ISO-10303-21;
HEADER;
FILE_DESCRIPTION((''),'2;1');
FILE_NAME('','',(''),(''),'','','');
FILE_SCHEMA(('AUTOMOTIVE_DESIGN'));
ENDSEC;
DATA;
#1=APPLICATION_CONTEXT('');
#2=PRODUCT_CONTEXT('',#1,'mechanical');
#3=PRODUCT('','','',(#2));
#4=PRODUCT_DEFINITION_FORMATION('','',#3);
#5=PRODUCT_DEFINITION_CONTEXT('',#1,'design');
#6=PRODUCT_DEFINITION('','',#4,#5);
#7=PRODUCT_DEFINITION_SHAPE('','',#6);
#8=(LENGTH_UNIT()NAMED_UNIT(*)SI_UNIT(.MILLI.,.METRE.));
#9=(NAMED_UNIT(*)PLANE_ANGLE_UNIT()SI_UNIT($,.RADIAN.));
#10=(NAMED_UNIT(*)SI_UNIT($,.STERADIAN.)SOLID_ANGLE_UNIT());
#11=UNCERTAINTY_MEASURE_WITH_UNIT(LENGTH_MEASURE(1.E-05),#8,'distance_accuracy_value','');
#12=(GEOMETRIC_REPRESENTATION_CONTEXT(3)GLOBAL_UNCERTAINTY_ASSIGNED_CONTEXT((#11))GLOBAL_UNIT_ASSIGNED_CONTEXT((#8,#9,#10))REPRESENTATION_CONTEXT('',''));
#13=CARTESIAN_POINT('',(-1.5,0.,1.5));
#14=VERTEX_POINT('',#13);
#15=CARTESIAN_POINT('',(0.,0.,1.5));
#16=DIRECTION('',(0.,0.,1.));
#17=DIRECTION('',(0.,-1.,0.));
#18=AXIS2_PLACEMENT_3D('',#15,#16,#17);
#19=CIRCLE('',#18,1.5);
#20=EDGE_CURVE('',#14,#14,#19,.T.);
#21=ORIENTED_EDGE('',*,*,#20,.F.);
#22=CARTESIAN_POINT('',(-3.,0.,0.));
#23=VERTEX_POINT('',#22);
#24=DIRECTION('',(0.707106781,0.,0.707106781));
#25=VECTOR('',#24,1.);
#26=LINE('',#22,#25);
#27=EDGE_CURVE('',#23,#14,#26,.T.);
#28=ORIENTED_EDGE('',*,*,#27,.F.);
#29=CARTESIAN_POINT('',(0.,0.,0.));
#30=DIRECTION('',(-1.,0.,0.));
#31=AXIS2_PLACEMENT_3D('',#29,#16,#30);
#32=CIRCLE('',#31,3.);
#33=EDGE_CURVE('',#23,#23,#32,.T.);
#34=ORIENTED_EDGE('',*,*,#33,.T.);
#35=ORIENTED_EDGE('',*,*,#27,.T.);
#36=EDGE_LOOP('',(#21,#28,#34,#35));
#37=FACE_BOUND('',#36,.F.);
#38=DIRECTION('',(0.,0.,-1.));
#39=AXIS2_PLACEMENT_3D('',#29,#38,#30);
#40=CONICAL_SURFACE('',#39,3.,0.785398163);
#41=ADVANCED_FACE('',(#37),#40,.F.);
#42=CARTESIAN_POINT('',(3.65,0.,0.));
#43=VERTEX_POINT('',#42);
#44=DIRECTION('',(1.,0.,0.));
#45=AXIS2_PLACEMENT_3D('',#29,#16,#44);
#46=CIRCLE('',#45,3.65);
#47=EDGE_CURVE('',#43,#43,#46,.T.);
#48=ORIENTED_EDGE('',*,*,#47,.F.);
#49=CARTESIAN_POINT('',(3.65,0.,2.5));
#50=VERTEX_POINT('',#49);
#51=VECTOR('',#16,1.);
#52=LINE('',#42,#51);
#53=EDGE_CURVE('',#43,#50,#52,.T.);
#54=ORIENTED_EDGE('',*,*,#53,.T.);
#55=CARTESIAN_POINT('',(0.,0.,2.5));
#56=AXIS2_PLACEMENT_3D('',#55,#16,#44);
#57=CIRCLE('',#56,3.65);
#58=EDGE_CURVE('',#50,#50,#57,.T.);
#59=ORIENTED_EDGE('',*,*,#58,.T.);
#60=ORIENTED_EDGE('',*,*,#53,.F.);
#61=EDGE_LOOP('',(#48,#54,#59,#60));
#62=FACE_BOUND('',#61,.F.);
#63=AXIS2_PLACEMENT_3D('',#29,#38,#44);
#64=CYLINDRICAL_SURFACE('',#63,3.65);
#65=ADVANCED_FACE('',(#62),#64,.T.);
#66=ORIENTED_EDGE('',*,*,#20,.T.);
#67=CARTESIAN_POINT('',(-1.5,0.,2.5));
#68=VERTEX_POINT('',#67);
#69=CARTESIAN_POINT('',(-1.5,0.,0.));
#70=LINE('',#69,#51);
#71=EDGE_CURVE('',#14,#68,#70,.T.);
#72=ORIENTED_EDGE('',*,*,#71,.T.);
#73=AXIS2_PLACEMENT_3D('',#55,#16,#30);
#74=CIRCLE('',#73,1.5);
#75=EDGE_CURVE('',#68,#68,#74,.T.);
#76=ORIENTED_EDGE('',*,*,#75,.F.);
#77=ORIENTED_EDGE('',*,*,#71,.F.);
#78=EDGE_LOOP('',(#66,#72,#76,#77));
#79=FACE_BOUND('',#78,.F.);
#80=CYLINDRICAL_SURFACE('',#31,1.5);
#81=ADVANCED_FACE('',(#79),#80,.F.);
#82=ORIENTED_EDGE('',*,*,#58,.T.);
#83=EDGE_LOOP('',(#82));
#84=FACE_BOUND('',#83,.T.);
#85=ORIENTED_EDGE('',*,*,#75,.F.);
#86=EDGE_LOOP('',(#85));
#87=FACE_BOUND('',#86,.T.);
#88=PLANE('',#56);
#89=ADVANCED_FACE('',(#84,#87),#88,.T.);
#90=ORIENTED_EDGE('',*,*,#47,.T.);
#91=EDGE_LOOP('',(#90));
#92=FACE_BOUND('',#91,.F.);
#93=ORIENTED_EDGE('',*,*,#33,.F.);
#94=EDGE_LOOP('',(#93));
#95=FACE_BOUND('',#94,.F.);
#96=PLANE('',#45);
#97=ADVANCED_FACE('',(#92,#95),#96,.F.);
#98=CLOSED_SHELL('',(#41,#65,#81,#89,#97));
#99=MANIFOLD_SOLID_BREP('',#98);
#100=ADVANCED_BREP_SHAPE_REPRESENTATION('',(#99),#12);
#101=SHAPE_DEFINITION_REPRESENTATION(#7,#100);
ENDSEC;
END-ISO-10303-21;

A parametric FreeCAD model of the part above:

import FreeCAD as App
import Part
import Sketcher
Q = App.Units.Quantity

doc = App.newDocument("Part")
params = doc.addObject("Spreadsheet::Sheet", "Params")
for row, (alias, value) in enumerate([
    ("sketch1_diameter", "7.3 mm"),
    ("pad1_length", "2.5 mm"),
    ("sketch2_diameter", "3 mm"),
    ("hole_diameter", "3 mm"),
    ("hole_csink_diameter", "6 mm"),
], start=1):
    params.set(f"A{row}", alias)
    params.set(f"B{row}", "=" + value)
    params.setAlias(f"B{row}", alias)

body = doc.addObject("PartDesign::Body", "Body")

# Sketch on XY plane
sketch1 = body.newObject("Sketcher::SketchObject", "Sketch")
sketch1.AttachmentSupport = (doc.getObject("XY_Plane"), [""])
sketch1.MapMode = "FlatFace"
sketch1.addGeometry(Part.Circle(App.Vector(0, 0, 0), App.Vector(0, 0, 1), 3.6), False)
sketch1.addConstraint([
    Sketcher.Constraint("Coincident", 0, 3, -1, 1),
    Sketcher.Constraint("Diameter", 0, Q("7.3 mm")),
])
sketch1.setExpression("Constraints[1]", "Params.sketch1_diameter")
pad1 = body.newObject("PartDesign::Pad", "Pad")
pad1.Profile = sketch1
pad1.setExpression("Length", "Params.pad1_length")

# Sketch on XY plane
sketch2 = body.newObject("Sketcher::SketchObject", "Sketch001")
sketch2.AttachmentSupport = (doc.getObject("XY_Plane"), [""])
sketch2.MapMode = "FlatFace"
sketch2.addGeometry(Part.Circle(App.Vector(0, 0, 0), App.Vector(0, 0, 1), 1.5), False)
sketch2.addConstraint([
    Sketcher.Constraint("Coincident", 0, 3, -1, 1),
    Sketcher.Constraint("Diameter", 0, Q("3 mm")),
])
sketch2.setExpression("Constraints[1]", "Params.sketch2_diameter")
doc.recompute()
hole = body.newObject("PartDesign::Hole", "Hole")
hole.Profile = sketch2
hole.ThreadType = "None"
hole.setExpression("Diameter", "Params.hole_diameter")
hole.DepthType = "ThroughAll"
hole.HoleCutType = "Countersink"
hole.setExpression("HoleCutDiameter", "Params.hole_csink_diameter")
hole.HoleCutCountersinkAngle = 90
hole.Reversed = True

doc.recompute()
